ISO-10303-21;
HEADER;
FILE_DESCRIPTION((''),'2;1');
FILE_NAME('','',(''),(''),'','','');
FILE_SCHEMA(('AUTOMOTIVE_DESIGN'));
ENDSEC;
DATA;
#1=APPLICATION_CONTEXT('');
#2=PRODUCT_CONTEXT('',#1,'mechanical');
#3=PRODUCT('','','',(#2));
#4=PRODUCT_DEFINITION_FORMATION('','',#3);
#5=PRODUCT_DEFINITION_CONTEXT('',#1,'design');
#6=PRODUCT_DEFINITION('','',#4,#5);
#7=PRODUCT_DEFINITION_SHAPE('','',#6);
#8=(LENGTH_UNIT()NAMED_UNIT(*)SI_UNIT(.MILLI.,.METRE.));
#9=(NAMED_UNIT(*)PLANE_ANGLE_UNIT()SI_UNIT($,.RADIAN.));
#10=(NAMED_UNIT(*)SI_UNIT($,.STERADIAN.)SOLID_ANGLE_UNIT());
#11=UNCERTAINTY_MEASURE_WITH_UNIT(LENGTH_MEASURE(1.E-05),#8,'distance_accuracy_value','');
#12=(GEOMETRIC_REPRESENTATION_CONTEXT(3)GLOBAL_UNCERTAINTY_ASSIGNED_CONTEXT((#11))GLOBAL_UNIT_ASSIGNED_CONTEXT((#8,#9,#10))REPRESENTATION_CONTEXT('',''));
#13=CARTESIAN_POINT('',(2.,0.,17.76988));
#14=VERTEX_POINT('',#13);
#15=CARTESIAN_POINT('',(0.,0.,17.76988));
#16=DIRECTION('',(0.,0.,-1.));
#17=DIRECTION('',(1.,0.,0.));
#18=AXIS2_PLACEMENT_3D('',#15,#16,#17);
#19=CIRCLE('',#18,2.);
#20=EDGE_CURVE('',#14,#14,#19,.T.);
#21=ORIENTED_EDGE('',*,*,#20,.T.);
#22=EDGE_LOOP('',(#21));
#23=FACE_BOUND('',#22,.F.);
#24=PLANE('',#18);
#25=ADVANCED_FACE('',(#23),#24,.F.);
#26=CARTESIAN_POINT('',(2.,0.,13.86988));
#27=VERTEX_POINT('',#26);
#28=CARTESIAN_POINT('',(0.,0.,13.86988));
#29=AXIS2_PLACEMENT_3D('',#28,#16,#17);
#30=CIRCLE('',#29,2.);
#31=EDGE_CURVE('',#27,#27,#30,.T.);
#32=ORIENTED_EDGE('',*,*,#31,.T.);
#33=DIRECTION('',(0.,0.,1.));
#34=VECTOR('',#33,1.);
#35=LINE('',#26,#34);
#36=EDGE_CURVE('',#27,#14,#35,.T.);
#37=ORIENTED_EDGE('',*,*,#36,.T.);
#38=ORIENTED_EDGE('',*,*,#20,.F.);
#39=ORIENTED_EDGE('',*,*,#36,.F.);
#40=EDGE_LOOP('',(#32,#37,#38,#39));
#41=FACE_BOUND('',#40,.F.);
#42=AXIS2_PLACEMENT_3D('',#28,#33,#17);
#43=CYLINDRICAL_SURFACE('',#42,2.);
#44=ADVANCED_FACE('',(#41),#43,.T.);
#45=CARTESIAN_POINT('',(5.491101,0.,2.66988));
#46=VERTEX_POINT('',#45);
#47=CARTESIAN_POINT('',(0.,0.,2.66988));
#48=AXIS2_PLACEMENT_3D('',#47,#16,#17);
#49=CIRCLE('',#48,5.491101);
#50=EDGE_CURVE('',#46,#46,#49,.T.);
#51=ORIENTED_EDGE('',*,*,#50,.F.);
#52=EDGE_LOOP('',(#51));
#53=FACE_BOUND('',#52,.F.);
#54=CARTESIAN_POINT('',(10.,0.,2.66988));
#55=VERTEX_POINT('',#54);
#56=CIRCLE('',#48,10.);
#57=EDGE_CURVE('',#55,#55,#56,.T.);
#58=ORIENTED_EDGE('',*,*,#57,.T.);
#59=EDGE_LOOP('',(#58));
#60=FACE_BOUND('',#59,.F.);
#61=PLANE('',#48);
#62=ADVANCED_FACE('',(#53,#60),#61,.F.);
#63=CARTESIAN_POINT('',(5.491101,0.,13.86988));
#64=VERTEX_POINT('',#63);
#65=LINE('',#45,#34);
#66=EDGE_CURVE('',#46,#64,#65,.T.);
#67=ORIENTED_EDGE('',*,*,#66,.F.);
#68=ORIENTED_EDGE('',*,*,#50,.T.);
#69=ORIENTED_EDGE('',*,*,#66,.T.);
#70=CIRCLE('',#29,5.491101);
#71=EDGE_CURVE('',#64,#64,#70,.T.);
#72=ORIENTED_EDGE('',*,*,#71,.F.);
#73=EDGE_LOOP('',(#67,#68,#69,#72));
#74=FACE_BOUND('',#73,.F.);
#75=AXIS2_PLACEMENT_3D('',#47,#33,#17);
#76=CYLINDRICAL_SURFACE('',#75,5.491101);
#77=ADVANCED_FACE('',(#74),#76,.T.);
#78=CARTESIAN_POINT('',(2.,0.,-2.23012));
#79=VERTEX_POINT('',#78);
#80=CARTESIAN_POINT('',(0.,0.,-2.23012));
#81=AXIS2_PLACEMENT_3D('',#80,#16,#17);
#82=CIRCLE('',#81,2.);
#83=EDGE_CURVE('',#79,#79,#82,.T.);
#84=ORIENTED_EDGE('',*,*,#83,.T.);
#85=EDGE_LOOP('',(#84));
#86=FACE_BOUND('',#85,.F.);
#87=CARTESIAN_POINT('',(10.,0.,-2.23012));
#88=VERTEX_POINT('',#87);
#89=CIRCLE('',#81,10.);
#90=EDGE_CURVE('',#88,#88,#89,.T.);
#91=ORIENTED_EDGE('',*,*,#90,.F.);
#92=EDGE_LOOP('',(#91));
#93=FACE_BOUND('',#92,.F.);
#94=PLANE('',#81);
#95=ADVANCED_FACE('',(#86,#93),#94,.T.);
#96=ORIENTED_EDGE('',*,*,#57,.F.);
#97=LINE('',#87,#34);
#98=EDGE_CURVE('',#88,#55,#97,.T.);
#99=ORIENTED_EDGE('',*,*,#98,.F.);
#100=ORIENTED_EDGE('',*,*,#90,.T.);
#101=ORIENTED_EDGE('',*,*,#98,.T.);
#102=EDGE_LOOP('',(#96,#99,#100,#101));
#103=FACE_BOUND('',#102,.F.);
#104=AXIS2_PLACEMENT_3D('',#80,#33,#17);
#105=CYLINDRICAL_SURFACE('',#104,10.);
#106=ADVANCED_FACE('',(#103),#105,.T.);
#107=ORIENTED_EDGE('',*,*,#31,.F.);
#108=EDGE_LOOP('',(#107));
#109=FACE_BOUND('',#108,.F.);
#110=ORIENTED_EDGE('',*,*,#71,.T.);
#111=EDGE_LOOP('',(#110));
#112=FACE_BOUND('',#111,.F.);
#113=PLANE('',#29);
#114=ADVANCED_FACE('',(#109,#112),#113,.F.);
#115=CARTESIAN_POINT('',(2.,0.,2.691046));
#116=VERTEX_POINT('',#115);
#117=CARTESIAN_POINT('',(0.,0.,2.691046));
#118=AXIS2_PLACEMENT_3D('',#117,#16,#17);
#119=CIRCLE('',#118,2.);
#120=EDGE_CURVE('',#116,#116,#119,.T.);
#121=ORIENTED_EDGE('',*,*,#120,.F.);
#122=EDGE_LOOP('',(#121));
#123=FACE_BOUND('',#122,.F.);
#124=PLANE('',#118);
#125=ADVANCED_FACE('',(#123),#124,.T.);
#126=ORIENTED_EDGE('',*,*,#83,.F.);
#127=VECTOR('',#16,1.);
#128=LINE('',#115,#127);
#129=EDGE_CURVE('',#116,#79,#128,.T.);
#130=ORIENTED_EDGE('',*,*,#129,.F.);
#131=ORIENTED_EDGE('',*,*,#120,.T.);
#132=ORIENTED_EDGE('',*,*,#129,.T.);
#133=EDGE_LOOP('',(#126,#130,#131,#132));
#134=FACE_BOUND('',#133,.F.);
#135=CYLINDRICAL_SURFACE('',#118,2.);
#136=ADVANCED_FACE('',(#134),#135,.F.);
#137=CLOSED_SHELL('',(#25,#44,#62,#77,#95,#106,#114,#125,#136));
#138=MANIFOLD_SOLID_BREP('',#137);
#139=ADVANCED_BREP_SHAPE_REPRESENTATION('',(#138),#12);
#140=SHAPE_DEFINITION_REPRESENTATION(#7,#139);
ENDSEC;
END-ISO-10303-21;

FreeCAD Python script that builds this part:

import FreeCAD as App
import Part
import Sketcher

V = App.Vector


def add_polygon(sketch, points):
    """Adds a closed chain of lines whose ends are joined by coincident constraints."""
    first, n = sketch.GeometryCount, len(points)
    for a, b in zip(points, points[1:] + points[:1]):
        sketch.addGeometry(Part.LineSegment(App.Vector(*a, 0), App.Vector(*b, 0)), False)
    for i in range(n):
        sketch.addConstraint(Sketcher.Constraint("Coincident", first + i, 2, first + (i + 1) % n, 1))

doc = App.newDocument("Part")
body = doc.addObject("PartDesign::Body", "Body")

# Sketch on XZ plane
sketch1 = body.newObject("Sketcher::SketchObject", "Sketch")
sketch1.AttachmentSupport = (doc.getObject("XZ_Plane"), [""])
sketch1.MapMode = "FlatFace"
add_polygon(sketch1, [(2, 2.3), (2, -2.3), (10, -2.3), (10, 2.3)])  # lines 0-3
sketch1.addConstraint([
    Sketcher.Constraint("Vertical", 0),
    Sketcher.Constraint("Horizontal", 1),
    Sketcher.Constraint("Vertical", 2),
    Sketcher.Constraint("Horizontal", 3),
    Sketcher.Constraint("DistanceX", 1, 1, 1, 2, 8.0),
    Sketcher.Constraint("DistanceY", 0, 2, 0, 1, 4.6),
    Sketcher.Constraint("DistanceX", -1, 1, 0, 2, 2.0),
    Sketcher.Constraint("DistanceY", -1, 1, 2, 2, 2.339412),
])
revolution = body.newObject("PartDesign::Revolution", "Revolution")
revolution.Profile = sketch1
revolution.ReferenceAxis = (sketch1, ["V_Axis"])
revolution.Angle = 360

# Sketch on XY plane
sketch2 = body.newObject("Sketcher::SketchObject", "Sketch001")
sketch2.AttachmentSupport = (doc.getObject("XY_Plane"), [""])
sketch2.MapMode = "FlatFace"
sketch2.AttachmentOffset = App.Placement(V(0, 0, 2.339412), App.Rotation())
sketch2.addGeometry([
    Part.Circle(V(0, 0, 0), V(0, 0, 1), 5.5),
    Part.Circle(V(0, 0, 0), V(0, 0, 1), 2),
], False)
sketch2.addConstraint([
    Sketcher.Constraint("Coincident", 0, 3, -1, 1),
    Sketcher.Constraint("Coincident", 1, 3, -1, 1),
    Sketcher.Constraint("Diameter", 0, 11.0),
    Sketcher.Constraint("Diameter", 1, 4.0),
])
pad1 = body.newObject("PartDesign::Pad", "Pad")
pad1.Profile = sketch2
pad1.Length = 0.3
body2 = doc.addObject("PartDesign::Body", "Body001")

# Sketch on XZ plane
sketch3 = body2.newObject("Sketcher::SketchObject", "Sketch002")
sketch3.AttachmentSupport = (doc.getObject("XZ_Plane001"), [""])
sketch3.MapMode = "FlatFace"
add_polygon(sketch3, [(0, 14), (0, 3), (6, 3), (6, 14)])  # lines 0-3
sketch3.addConstraint([
    Sketcher.Constraint("Vertical", 0),
    Sketcher.Constraint("Horizontal", 1),
    Sketcher.Constraint("Vertical", 2),
    Sketcher.Constraint("Horizontal", 3),
    Sketcher.Constraint("PointOnObject", 0, 2, -2),
    Sketcher.Constraint("DistanceX", 1, 1, 1, 2, 5.5),
    Sketcher.Constraint("DistanceY", 0, 2, 0, 1, 11.2),
    Sketcher.Constraint("DistanceY", -1, 1, 0, 2, 2.652153),
])
revolution2 = body2.newObject("PartDesign::Revolution", "Revolution001")
revolution2.Profile = sketch3
revolution2.ReferenceAxis = (sketch3, ["V_Axis"])
revolution2.Angle = 360

# Sketch on XY plane
sketch4 = body2.newObject("Sketcher::SketchObject", "Sketch003")
sketch4.AttachmentSupport = (doc.getObject("XY_Plane001"), [""])
sketch4.MapMode = "FlatFace"
sketch4.AttachmentOffset = App.Placement(V(0, 0, 13.852153), App.Rotation())
sketch4.addGeometry(Part.Circle(V(0, 0, 0), V(0, 0, 1), 2), False)
sketch4.addConstraint([
    Sketcher.Constraint("Coincident", 0, 3, -1, 1),
    Sketcher.Constraint("Diameter", 0, 4.0),
])
pad2 = body2.newObject("PartDesign::Pad", "Pad001")
pad2.Profile = sketch4
pad2.Length = 3.9
body3 = doc.addObject("PartDesign::Body", "Body002")

# Sketch on XZ plane
sketch5 = body3.newObject("Sketcher::SketchObject", "Sketch004")
sketch5.AttachmentSupport = (doc.getObject("XZ_Plane002"), [""])
sketch5.MapMode = "FlatFace"
add_polygon(sketch5, [(2, 17.8), (0, 17.8), (0, 2.7), (2, 2.7), (2, -2.2), (10, -2.2), (10, 2.7), (5.5, 2.7), (5.5, 13.9), (2, 13.9)])  # lines 0-9
sketch5.addConstraint([
    Sketcher.Constraint("Horizontal", 0),
    Sketcher.Constraint("Vertical", 1),
    Sketcher.Constraint("Horizontal", 2),
    Sketcher.Constraint("Vertical", 3),
    Sketcher.Constraint("Horizontal", 4),
    Sketcher.Constraint("Vertical", 5),
    Sketcher.Constraint("Horizontal", 6),
    Sketcher.Constraint("Vertical", 7),
    Sketcher.Constraint("Horizontal", 8),
    Sketcher.Constraint("Vertical", 9),
    Sketcher.Constraint("PointOnObject", 0, 2, -2),
    Sketcher.Constraint("Vertical", 3, 2, 8, 2),
    Sketcher.Constraint("DistanceX", 0, 2, 0, 1, 2.0),
    Sketcher.Constraint("DistanceX", 4, 1, 4, 2, 8.0),
    Sketcher.Constraint("DistanceY", 5, 1, 5, 2, 4.9),
    Sketcher.Constraint("DistanceY", 7, 1, 7, 2, 11.2),
    Sketcher.Constraint("DistanceY", 9, 1, 9, 2, 3.9),
    Sketcher.Constraint("DistanceX", 6, 2, 6, 1, 4.508899),
    Sketcher.Constraint("DistanceY", 1, 2, 1, 1, 15.078834),
    Sketcher.Constraint("DistanceY", -1, 1, 0, 2, 17.76988),
])
revolution3 = body3.newObject("PartDesign::Revolution", "Revolution002")
revolution3.Profile = sketch5
revolution3.ReferenceAxis = (sketch5, ["V_Axis"])
revolution3.Angle = 360
body.Visibility = False
body2.Visibility = False

doc.recompute()
